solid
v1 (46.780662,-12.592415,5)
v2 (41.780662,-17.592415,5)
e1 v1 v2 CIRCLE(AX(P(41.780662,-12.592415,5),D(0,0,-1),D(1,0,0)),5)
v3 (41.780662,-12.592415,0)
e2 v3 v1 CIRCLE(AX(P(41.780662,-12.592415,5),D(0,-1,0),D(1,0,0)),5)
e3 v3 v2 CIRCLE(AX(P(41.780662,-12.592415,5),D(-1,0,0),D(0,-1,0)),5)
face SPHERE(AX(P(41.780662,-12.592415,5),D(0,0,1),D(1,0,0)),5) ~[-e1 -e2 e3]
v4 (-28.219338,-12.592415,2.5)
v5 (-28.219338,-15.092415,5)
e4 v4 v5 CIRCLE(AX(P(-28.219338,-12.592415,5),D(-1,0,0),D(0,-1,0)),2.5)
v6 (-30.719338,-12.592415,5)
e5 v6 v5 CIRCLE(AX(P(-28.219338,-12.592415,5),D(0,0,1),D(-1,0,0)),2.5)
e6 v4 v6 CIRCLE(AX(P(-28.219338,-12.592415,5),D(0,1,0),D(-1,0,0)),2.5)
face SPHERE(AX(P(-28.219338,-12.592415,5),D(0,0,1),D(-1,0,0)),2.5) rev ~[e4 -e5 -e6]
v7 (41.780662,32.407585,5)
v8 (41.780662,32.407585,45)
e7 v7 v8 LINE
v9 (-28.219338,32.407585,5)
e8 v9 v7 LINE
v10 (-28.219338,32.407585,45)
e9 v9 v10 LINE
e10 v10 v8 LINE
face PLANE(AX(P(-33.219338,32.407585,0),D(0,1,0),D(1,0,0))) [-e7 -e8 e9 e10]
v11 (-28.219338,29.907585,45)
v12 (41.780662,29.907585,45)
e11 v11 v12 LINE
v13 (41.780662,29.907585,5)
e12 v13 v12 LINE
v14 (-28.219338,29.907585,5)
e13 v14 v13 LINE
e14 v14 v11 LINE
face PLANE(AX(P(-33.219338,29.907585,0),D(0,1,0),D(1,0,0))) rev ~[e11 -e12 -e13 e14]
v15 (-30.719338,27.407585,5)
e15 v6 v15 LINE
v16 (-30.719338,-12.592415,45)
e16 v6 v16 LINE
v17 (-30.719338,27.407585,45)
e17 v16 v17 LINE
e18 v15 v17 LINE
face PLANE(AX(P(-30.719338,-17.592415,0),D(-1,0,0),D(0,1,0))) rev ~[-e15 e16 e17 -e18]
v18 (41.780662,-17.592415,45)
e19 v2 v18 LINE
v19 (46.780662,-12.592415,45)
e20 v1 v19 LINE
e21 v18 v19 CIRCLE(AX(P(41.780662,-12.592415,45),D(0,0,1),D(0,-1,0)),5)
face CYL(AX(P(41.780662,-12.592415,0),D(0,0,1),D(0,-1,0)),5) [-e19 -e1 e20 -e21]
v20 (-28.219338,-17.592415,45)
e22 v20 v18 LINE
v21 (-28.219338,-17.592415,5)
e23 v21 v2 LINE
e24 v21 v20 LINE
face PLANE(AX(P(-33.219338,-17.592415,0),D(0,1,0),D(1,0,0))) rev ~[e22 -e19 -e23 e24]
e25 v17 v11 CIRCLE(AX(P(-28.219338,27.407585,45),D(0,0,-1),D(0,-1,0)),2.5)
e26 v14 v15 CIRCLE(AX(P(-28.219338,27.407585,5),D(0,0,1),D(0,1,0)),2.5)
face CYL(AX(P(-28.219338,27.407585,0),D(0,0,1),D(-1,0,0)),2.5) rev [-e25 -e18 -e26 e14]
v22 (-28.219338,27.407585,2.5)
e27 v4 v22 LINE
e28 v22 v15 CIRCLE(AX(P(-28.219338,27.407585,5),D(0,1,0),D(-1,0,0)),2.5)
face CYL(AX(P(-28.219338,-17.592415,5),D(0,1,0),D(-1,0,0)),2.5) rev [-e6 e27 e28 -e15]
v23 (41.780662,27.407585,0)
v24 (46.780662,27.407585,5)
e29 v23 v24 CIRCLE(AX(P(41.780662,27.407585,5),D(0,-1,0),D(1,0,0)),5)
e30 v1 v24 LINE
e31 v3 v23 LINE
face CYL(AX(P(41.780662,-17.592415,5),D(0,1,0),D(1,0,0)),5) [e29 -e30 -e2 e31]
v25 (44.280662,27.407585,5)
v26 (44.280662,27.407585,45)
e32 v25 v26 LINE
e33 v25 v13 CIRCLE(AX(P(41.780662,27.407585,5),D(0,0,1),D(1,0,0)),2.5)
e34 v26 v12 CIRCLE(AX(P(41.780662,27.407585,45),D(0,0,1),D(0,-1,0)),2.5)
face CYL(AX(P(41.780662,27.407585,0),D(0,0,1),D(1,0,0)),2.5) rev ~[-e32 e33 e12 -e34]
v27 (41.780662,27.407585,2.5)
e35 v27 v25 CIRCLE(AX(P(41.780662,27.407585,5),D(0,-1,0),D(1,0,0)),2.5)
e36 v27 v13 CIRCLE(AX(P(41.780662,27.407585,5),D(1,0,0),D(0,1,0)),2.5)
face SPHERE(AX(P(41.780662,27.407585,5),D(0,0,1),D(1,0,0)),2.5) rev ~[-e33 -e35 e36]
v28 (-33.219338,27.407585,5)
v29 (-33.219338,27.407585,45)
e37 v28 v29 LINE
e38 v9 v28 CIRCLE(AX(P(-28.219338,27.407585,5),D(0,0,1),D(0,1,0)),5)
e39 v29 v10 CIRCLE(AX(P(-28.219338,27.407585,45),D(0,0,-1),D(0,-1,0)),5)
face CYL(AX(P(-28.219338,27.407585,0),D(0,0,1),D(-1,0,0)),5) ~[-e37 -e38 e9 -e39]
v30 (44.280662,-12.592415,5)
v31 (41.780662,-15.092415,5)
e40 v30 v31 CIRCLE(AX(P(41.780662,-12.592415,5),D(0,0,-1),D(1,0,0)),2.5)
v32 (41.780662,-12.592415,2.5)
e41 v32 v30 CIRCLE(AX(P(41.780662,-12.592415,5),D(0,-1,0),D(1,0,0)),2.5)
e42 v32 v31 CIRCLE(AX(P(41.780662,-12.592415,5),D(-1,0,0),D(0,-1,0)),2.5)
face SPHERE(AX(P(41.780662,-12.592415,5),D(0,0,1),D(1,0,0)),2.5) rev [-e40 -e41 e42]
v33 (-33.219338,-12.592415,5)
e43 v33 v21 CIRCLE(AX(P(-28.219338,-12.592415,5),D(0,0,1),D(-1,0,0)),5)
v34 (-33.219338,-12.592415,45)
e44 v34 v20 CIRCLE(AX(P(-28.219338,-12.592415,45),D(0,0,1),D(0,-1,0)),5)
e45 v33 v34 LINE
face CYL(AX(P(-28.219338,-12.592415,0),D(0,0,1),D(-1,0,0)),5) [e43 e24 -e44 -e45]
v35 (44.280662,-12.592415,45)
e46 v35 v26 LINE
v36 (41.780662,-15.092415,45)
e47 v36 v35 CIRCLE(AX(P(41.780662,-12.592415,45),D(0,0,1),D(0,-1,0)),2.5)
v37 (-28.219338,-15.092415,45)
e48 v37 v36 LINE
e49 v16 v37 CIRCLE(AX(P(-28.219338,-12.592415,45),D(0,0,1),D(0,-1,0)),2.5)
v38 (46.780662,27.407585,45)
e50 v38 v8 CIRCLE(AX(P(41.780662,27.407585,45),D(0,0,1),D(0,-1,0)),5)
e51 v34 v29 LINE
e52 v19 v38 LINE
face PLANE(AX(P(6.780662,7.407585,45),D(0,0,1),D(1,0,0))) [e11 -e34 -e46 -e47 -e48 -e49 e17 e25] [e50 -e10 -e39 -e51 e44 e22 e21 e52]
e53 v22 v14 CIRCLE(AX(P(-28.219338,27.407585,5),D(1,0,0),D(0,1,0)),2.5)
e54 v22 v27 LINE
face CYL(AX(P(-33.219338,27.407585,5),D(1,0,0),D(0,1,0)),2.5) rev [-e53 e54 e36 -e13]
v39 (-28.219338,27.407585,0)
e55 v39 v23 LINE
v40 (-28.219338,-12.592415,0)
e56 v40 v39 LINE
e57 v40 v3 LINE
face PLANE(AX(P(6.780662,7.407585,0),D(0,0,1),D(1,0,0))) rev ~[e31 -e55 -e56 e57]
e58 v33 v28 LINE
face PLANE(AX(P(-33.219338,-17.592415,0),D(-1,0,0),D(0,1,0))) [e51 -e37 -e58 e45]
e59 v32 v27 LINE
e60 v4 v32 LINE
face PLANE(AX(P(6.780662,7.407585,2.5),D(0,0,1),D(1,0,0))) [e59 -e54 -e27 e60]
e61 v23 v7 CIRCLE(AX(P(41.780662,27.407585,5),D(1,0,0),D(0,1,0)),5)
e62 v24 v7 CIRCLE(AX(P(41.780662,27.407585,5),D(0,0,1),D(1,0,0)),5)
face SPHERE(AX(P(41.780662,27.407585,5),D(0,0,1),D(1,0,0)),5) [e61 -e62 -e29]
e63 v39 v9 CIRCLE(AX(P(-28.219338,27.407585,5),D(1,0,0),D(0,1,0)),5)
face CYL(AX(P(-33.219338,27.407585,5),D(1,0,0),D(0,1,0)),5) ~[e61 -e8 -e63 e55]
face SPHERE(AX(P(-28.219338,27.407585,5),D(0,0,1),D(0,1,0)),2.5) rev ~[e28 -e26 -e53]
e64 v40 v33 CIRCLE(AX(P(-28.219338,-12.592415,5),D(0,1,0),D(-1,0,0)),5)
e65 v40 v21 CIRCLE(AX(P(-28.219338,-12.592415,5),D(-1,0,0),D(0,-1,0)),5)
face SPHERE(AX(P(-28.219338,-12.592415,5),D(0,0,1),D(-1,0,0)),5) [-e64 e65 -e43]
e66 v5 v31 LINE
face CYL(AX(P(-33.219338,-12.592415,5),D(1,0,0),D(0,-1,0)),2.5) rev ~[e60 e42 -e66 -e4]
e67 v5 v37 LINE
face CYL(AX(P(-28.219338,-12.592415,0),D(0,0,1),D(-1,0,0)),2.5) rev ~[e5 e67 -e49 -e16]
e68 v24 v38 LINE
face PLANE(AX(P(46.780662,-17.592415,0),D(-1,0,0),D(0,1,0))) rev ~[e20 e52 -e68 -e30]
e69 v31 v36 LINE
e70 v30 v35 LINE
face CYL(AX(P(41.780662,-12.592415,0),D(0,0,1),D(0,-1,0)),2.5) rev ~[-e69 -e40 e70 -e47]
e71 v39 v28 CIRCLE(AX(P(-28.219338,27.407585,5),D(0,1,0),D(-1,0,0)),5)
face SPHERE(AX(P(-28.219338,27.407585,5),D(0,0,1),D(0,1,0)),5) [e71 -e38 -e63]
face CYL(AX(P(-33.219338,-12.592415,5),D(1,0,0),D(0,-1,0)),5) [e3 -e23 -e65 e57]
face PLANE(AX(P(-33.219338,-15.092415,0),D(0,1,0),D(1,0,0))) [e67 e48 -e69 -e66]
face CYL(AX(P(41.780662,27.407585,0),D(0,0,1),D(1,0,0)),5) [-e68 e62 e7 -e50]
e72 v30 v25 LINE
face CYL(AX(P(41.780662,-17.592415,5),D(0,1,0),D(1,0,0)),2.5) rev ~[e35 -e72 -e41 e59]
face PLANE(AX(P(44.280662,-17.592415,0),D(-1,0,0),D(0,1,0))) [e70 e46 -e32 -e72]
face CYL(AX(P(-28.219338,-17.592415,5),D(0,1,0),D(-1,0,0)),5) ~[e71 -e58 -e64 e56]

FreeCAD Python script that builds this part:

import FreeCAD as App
import Part
import Sketcher

V = App.Vector
Q = App.Units.Quantity


def edges_at(feature, points):
    """Names of the edges that pass closest to the given points."""
    edges = feature.Shape.Edges
    near = lambda p: min(range(len(edges)), key=lambda i: edges[i].distToShape(Part.Vertex(*p))[0])
    return sorted({f"Edge{near(p) + 1}" for p in points})


def faces_at(feature, points):
    """Names of the faces that lie closest to the given points."""
    faces = feature.Shape.Faces
    near = lambda p: min(range(len(faces)), key=lambda i: faces[i].distToShape(Part.Vertex(*p))[0])
    return sorted({f"Face{near(p) + 1}" for p in points})


def add_polygon(sketch, points):
    """Adds a closed chain of lines whose ends are joined by coincident constraints."""
    first, n = sketch.GeometryCount, len(points)
    for a, b in zip(points, points[1:] + points[:1]):
        sketch.addGeometry(Part.LineSegment(App.Vector(*a, 0), App.Vector(*b, 0)), False)
    for i in range(n):
        sketch.addConstraint(Sketcher.Constraint("Coincident", first + i, 2, first + (i + 1) % n, 1))

doc = App.newDocument("Part")
params = doc.addObject("Spreadsheet::Sheet", "Params")
for row, (alias, value) in enumerate([
    ("sketch1_width", "80 mm"),
    ("sketch1_height", "50 mm"),
    ("pad1_length", "45 mm"),
    ("fillet_radius", "5 mm"),
    ("thickness_wall", "2.5 mm"),
], start=1):
    params.set(f"A{row}", alias)
    params.set(f"B{row}", "=" + value)
    params.setAlias(f"B{row}", alias)

body = doc.addObject("PartDesign::Body", "Body")

# Sketch on XY plane
sketch1 = body.newObject("Sketcher::SketchObject", "Sketch")
sketch1.AttachmentSupport = (doc.getObject("XY_Plane"), [""])
sketch1.MapMode = "FlatFace"
add_polygon(sketch1, [(-33, 32), (-33, -18), (47, -18), (47, 32)])  # lines 0-3
sketch1.addConstraint([
    Sketcher.Constraint("Vertical", 0),
    Sketcher.Constraint("Horizontal", 1),
    Sketcher.Constraint("Vertical", 2),
    Sketcher.Constraint("Horizontal", 3),
    Sketcher.Constraint("DistanceX", 1, 1, 1, 2, Q("80 mm")),
    Sketcher.Constraint("DistanceY", 0, 2, 0, 1, Q("50 mm")),
    Sketcher.Constraint("DistanceX", 0, 2, -1, 1, Q("33.219338 mm")),
    Sketcher.Constraint("DistanceY", 0, 2, -1, 1, Q("17.592415 mm")),
])
sketch1.setExpression("Constraints[8]", "Params.sketch1_width")
sketch1.setExpression("Constraints[9]", "Params.sketch1_height")
pad1 = body.newObject("PartDesign::Pad", "Pad")
pad1.Profile = sketch1
pad1.setExpression("Length", "Params.pad1_length")
doc.recompute()

fillet = body.newObject("PartDesign::Fillet", "Fillet")
fillet.Base = (pad1, edges_at(pad1, [
    (-33.219, -17.592, 22.5),
    (46.781, -17.592, 22.5),
    (46.781, 32.408, 22.5),
    (-33.219, 32.408, 22.5),
    (46.781, 7.408, 0),
    (6.781, 32.408, 0),
    (-33.219, 7.408, 0),
    (6.781, -17.592, 0),
]))
fillet.setExpression("Radius", "Params.fillet_radius")
doc.recompute()

thickness = body.newObject("PartDesign::Thickness", "Thickness")
thickness.Base = (fillet, faces_at(fillet, [(6.781, 7.408, 45)]))
thickness.setExpression("Value", "Params.thickness_wall")
thickness.Reversed = True
thickness.Join = "Arc"

doc.recompute()
